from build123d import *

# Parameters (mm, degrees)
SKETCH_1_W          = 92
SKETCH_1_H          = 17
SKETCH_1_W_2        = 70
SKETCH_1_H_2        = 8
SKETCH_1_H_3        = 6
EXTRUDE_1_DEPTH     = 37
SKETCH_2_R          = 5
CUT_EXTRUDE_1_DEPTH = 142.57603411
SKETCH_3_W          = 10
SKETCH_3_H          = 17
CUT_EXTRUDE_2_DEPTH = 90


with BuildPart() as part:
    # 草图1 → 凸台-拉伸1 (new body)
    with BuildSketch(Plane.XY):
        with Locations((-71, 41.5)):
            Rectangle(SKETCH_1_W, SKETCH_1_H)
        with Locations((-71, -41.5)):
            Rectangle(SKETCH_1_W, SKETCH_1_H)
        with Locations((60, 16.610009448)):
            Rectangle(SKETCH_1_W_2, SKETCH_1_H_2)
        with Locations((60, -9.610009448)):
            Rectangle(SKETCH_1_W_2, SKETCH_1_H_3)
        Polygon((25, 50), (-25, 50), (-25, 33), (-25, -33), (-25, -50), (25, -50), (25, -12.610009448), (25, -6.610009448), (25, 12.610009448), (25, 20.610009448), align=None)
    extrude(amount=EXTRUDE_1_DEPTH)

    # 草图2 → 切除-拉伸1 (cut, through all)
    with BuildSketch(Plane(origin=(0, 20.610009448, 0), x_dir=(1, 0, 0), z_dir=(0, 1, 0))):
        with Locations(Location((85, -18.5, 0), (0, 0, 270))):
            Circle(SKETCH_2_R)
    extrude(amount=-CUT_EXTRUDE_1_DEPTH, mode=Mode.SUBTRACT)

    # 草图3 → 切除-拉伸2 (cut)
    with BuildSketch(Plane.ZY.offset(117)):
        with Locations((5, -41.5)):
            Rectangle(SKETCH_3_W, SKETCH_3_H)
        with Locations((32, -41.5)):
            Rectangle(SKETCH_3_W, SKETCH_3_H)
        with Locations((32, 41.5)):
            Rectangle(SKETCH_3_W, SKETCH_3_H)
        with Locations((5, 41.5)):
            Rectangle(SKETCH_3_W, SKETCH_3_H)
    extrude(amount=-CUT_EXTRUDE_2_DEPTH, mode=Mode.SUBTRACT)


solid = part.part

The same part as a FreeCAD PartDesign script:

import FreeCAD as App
import Part
import Sketcher

V = App.Vector
Q = App.Units.Quantity

doc = App.newDocument("Part")
params = doc.addObject("Spreadsheet::Sheet", "Params")
for row, (alias, value) in enumerate([
    ("sketch1_width", "92 mm"),
    ("sketch1_width2", "142 mm"),
    ("sketch1_width3", "70 mm"),
    ("sketch1_height", "17 mm"),
    ("sketch1_height2", "66 mm"),
    ("pad1_length", "37 mm"),
    ("sketch2_diameter", "10 mm"),
    ("sketch3_width", "17 mm"),
    ("sketch3_height", "10 mm"),
    ("pocket2_length", "90 mm"),
], start=1):
    params.set(f"A{row}", alias)
    params.set(f"B{row}", "=" + value)
    params.setAlias(f"B{row}", alias)

body = doc.addObject("PartDesign::Body", "Body")

sketch1 = body.newObject("Sketcher::SketchObject", "Sketch")
sketch1.AttachmentSupport = (doc.getObject("XY_Plane"), [""])
sketch1.MapMode = "FlatFace"
sketch1.addGeometry([
    Part.LineSegment(V(-117, 50, 0), V(-117, 33, 0)),
    Part.LineSegment(V(-117, 33, 0), V(-25, 33, 0)),
    Part.LineSegment(V(-25, 33, 0), V(-25, -33, 0)),
    Part.LineSegment(V(-25, -33, 0), V(-117, -33, 0)),
    Part.LineSegment(V(-117, -33, 0), V(-117, -50, 0)),
    Part.LineSegment(V(-117, -50, 0), V(25, -50, 0)),
    Part.LineSegment(V(25, -50, 0), V(25, -13, 0)),
    Part.LineSegment(V(25, -13, 0), V(95, -13, 0)),
    Part.LineSegment(V(95, -13, 0), V(95, -7, 0)),
    Part.LineSegment(V(95, -7, 0), V(25, -7, 0)),
    Part.LineSegment(V(25, -7, 0), V(25, 13, 0)),
    Part.LineSegment(V(25, 13, 0), V(95, 13, 0)),
    Part.LineSegment(V(95, 13, 0), V(95, 21, 0)),
    Part.LineSegment(V(95, 21, 0), V(25, 21, 0)),
    Part.LineSegment(V(25, 21, 0), V(25, 50, 0)),
    Part.LineSegment(V(25, 50, 0), V(-117, 50, 0)),
], False)
sketch1.addConstraint([
    Sketcher.Constraint("Coincident", 0, 2, 1, 1),
    Sketcher.Constraint("Coincident", 1, 2, 2, 1),
    Sketcher.Constraint("Coincident", 2, 2, 3, 1),
    Sketcher.Constraint("Coincident", 3, 2, 4, 1),
    Sketcher.Constraint("Coincident", 4, 2, 5, 1),
    Sketcher.Constraint("Coincident", 5, 2, 6, 1),
    Sketcher.Constraint("Coincident", 6, 2, 7, 1),
    Sketcher.Constraint("Coincident", 7, 2, 8, 1),
    Sketcher.Constraint("Coincident", 8, 2, 9, 1),
    Sketcher.Constraint("Coincident", 9, 2, 10, 1),
    Sketcher.Constraint("Coincident", 10, 2, 11, 1),
    Sketcher.Constraint("Coincident", 11, 2, 12, 1),
    Sketcher.Constraint("Coincident", 12, 2, 13, 1),
    Sketcher.Constraint("Coincident", 13, 2, 14, 1),
    Sketcher.Constraint("Coincident", 14, 2, 15, 1),
    Sketcher.Constraint("Coincident", 15, 2, 0, 1),
    Sketcher.Constraint("Vertical", 0),
    Sketcher.Constraint("Horizontal", 1),
    Sketcher.Constraint("Vertical", 2),
    Sketcher.Constraint("Horizontal", 3),
    Sketcher.Constraint("Vertical", 4),
    Sketcher.Constraint("Horizontal", 5),
    Sketcher.Constraint("Vertical", 6),
    Sketcher.Constraint("Horizontal", 7),
    Sketcher.Constraint("Vertical", 8),
    Sketcher.Constraint("Horizontal", 9),
    Sketcher.Constraint("Vertical", 10),
    Sketcher.Constraint("Horizontal", 11),
    Sketcher.Constraint("Vertical", 12),
    Sketcher.Constraint("Horizontal", 13),
    Sketcher.Constraint("Vertical", 14),
    Sketcher.Constraint("Horizontal", 15),
    Sketcher.Constraint("Symmetric", 0, 2, 3, 2, -1),
    Sketcher.Constraint("Symmetric", 6, 2, 10, 2, -1),
    Sketcher.Constraint("Symmetric", 5, 2, 14, 2, -1),
    Sketcher.Constraint("Vertical", 8, 2, 11, 2),
    Sketcher.Constraint("DistanceX", 1, 1, 1, 2, Q("92 mm")),
    Sketcher.Constraint("DistanceX", 5, 1, 5, 2, Q("142 mm")),
    Sketcher.Constraint("DistanceX", 7, 1, 7, 2, Q("70 mm")),
    Sketcher.Constraint("DistanceY", 0, 2, 0, 1, Q("17 mm")),
    Sketcher.Constraint("DistanceY", 2, 2, 2, 1, Q("66 mm")),
    Sketcher.Constraint("DistanceY", 8, 1, 8, 2, Q("6 mm")),
    Sketcher.Constraint("DistanceY", 12, 1, 12, 2, Q("8 mm")),
    Sketcher.Constraint("DistanceX", 0, 2, -1, 1, Q("117 mm")),
    Sketcher.Constraint("DistanceY", 6, 1, 6, 2, Q("37.389991 mm")),
])
sketch1.setExpression("Constraints[36]", "Params.sketch1_width")
sketch1.setExpression("Constraints[37]", "Params.sketch1_width2")
sketch1.setExpression("Constraints[38]", "Params.sketch1_width3")
sketch1.setExpression("Constraints[39]", "Params.sketch1_height")
sketch1.setExpression("Constraints[40]", "Params.sketch1_height2")
pad1 = body.newObject("PartDesign::Pad", "Pad")
pad1.Profile = sketch1
pad1.setExpression("Length", "Params.pad1_length")

sketch2 = body.newObject("Sketcher::SketchObject", "Sketch001")
sketch2.AttachmentSupport = (doc.getObject("XZ_Plane"), [""])
sketch2.MapMode = "FlatFace"
sketch2.AttachmentOffset = App.Placement(V(0, 0, -20.610009), App.Rotation())
sketch2.addGeometry(Part.Circle(V(85, 18, 0), V(0, 0, 1), 5), False)
sketch2.addConstraint([
    Sketcher.Constraint("Diameter", 0, Q("10 mm")),
    Sketcher.Constraint("DistanceX", -1, 1, 0, 3, Q("85 mm")),
    Sketcher.Constraint("DistanceY", -1, 1, 0, 3, Q("18.5 mm")),
])
sketch2.setExpression("Constraints[0]", "Params.sketch2_diameter")
pocket1 = body.newObject("PartDesign::Pocket", "Pocket")
pocket1.Profile = sketch2
pocket1.Type = "ThroughAll"
pocket1.Reversed = True

sketch3 = body.newObject("Sketcher::SketchObject", "Sketch002")
sketch3.AttachmentSupport = (doc.getObject("YZ_Plane"), [""])
sketch3.MapMode = "FlatFace"
sketch3.AttachmentOffset = App.Placement(V(0, 0, -117), App.Rotation())
sketch3.addGeometry([
    Part.LineSegment(V(-33, 0, 0), V(-50, 0, 0)),
    Part.LineSegment(V(-50, 0, 0), V(-50, 10, 0)),
    Part.LineSegment(V(-50, 10, 0), V(-33, 10, 0)),
    Part.LineSegment(V(-33, 10, 0), V(-33, 0, 0)),
    Part.LineSegment(V(-33, 27, 0), V(-50, 27, 0)),
    Part.LineSegment(V(-50, 27, 0), V(-50, 37, 0)),
    Part.LineSegment(V(-50, 37, 0), V(-33, 37, 0)),
    Part.LineSegment(V(-33, 37, 0), V(-33, 27, 0)),
    Part.LineSegment(V(50, 27, 0), V(33, 27, 0)),
    Part.LineSegment(V(33, 27, 0), V(33, 37, 0)),
    Part.LineSegment(V(33, 37, 0), V(50, 37, 0)),
    Part.LineSegment(V(50, 37, 0), V(50, 27, 0)),
    Part.LineSegment(V(50, 0, 0), V(33, 0, 0)),
    Part.LineSegment(V(33, 0, 0), V(33, 10, 0)),
    Part.LineSegment(V(33, 10, 0), V(50, 10, 0)),
    Part.LineSegment(V(50, 10, 0), V(50, 0, 0)),
], False)
sketch3.addConstraint([
    Sketcher.Constraint("Coincident", 0, 2, 1, 1),
    Sketcher.Constraint("Coincident", 1, 2, 2, 1),
    Sketcher.Constraint("Coincident", 2, 2, 3, 1),
    Sketcher.Constraint("Coincident", 3, 2, 0, 1),
    Sketcher.Constraint("Coincident", 4, 2, 5, 1),
    Sketcher.Constraint("Coincident", 5, 2, 6, 1),
    Sketcher.Constraint("Coincident", 6, 2, 7, 1),
    Sketcher.Constraint("Coincident", 7, 2, 4, 1),
    Sketcher.Constraint("Coincident", 8, 2, 9, 1),
    Sketcher.Constraint("Coincident", 9, 2, 10, 1),
    Sketcher.Constraint("Coincident", 10, 2, 11, 1),
    Sketcher.Constraint("Coincident", 11, 2, 8, 1),
    Sketcher.Constraint("Coincident", 12, 2, 13, 1),
    Sketcher.Constraint("Coincident", 13, 2, 14, 1),
    Sketcher.Constraint("Coincident", 14, 2, 15, 1),
    Sketcher.Constraint("Coincident", 15, 2, 12, 1),
    Sketcher.Constraint("Horizontal", 0),
    Sketcher.Constraint("Vertical", 1),
    Sketcher.Constraint("Horizontal", 2),
    Sketcher.Constraint("Vertical", 3),
    Sketcher.Constraint("Horizontal", 4),
    Sketcher.Constraint("Vertical", 5),
    Sketcher.Constraint("Horizontal", 6),
    Sketcher.Constraint("Vertical", 7),
    Sketcher.Constraint("Horizontal", 8),
    Sketcher.Constraint("Vertical", 9),
    Sketcher.Constraint("Horizontal", 10),
    Sketcher.Constraint("Vertical", 11),
    Sketcher.Constraint("Horizontal", 12),
    Sketcher.Constraint("Vertical", 13),
    Sketcher.Constraint("Horizontal", 14),
    Sketcher.Constraint("Vertical", 15),
    Sketcher.Constraint("Symmetric", 3, 2, 12, 2, -1, 1),
    Sketcher.Constraint("Symmetric", 7, 2, 8, 2, -2),
    Sketcher.Constraint("Symmetric", 5, 2, 10, 2, -2),
    Sketcher.Constraint("Symmetric", 1, 2, 14, 2, -2),
    Sketcher.Constraint("PointOnObject", 0, 2, -1),
    Sketcher.Constraint("Vertical", 1, 2, 4, 2),
    Sketcher.Constraint("Vertical", 3, 2, 6, 2),
    Sketcher.Constraint("Equal", 3, 5),
    Sketcher.Constraint("DistanceX", 0, 2, 0, 1, Q("17 mm")),
    Sketcher.Constraint("DistanceY", 1, 1, 1, 2, Q("10 mm")),
    Sketcher.Constraint("DistanceX", 0, 2, -1, 1, Q("50 mm")),
    Sketcher.Constraint("DistanceY", -1, 1, 4, 2, Q("27 mm")),
])
sketch3.setExpression("Constraints[40]", "Params.sketch3_width")
sketch3.setExpression("Constraints[41]", "Params.sketch3_height")
pocket2 = body.newObject("PartDesign::Pocket", "Pocket001")
pocket2.Profile = sketch3
pocket2.setExpression("Length", "Params.pocket2_length")
pocket2.Reversed = True

doc.recompute()
